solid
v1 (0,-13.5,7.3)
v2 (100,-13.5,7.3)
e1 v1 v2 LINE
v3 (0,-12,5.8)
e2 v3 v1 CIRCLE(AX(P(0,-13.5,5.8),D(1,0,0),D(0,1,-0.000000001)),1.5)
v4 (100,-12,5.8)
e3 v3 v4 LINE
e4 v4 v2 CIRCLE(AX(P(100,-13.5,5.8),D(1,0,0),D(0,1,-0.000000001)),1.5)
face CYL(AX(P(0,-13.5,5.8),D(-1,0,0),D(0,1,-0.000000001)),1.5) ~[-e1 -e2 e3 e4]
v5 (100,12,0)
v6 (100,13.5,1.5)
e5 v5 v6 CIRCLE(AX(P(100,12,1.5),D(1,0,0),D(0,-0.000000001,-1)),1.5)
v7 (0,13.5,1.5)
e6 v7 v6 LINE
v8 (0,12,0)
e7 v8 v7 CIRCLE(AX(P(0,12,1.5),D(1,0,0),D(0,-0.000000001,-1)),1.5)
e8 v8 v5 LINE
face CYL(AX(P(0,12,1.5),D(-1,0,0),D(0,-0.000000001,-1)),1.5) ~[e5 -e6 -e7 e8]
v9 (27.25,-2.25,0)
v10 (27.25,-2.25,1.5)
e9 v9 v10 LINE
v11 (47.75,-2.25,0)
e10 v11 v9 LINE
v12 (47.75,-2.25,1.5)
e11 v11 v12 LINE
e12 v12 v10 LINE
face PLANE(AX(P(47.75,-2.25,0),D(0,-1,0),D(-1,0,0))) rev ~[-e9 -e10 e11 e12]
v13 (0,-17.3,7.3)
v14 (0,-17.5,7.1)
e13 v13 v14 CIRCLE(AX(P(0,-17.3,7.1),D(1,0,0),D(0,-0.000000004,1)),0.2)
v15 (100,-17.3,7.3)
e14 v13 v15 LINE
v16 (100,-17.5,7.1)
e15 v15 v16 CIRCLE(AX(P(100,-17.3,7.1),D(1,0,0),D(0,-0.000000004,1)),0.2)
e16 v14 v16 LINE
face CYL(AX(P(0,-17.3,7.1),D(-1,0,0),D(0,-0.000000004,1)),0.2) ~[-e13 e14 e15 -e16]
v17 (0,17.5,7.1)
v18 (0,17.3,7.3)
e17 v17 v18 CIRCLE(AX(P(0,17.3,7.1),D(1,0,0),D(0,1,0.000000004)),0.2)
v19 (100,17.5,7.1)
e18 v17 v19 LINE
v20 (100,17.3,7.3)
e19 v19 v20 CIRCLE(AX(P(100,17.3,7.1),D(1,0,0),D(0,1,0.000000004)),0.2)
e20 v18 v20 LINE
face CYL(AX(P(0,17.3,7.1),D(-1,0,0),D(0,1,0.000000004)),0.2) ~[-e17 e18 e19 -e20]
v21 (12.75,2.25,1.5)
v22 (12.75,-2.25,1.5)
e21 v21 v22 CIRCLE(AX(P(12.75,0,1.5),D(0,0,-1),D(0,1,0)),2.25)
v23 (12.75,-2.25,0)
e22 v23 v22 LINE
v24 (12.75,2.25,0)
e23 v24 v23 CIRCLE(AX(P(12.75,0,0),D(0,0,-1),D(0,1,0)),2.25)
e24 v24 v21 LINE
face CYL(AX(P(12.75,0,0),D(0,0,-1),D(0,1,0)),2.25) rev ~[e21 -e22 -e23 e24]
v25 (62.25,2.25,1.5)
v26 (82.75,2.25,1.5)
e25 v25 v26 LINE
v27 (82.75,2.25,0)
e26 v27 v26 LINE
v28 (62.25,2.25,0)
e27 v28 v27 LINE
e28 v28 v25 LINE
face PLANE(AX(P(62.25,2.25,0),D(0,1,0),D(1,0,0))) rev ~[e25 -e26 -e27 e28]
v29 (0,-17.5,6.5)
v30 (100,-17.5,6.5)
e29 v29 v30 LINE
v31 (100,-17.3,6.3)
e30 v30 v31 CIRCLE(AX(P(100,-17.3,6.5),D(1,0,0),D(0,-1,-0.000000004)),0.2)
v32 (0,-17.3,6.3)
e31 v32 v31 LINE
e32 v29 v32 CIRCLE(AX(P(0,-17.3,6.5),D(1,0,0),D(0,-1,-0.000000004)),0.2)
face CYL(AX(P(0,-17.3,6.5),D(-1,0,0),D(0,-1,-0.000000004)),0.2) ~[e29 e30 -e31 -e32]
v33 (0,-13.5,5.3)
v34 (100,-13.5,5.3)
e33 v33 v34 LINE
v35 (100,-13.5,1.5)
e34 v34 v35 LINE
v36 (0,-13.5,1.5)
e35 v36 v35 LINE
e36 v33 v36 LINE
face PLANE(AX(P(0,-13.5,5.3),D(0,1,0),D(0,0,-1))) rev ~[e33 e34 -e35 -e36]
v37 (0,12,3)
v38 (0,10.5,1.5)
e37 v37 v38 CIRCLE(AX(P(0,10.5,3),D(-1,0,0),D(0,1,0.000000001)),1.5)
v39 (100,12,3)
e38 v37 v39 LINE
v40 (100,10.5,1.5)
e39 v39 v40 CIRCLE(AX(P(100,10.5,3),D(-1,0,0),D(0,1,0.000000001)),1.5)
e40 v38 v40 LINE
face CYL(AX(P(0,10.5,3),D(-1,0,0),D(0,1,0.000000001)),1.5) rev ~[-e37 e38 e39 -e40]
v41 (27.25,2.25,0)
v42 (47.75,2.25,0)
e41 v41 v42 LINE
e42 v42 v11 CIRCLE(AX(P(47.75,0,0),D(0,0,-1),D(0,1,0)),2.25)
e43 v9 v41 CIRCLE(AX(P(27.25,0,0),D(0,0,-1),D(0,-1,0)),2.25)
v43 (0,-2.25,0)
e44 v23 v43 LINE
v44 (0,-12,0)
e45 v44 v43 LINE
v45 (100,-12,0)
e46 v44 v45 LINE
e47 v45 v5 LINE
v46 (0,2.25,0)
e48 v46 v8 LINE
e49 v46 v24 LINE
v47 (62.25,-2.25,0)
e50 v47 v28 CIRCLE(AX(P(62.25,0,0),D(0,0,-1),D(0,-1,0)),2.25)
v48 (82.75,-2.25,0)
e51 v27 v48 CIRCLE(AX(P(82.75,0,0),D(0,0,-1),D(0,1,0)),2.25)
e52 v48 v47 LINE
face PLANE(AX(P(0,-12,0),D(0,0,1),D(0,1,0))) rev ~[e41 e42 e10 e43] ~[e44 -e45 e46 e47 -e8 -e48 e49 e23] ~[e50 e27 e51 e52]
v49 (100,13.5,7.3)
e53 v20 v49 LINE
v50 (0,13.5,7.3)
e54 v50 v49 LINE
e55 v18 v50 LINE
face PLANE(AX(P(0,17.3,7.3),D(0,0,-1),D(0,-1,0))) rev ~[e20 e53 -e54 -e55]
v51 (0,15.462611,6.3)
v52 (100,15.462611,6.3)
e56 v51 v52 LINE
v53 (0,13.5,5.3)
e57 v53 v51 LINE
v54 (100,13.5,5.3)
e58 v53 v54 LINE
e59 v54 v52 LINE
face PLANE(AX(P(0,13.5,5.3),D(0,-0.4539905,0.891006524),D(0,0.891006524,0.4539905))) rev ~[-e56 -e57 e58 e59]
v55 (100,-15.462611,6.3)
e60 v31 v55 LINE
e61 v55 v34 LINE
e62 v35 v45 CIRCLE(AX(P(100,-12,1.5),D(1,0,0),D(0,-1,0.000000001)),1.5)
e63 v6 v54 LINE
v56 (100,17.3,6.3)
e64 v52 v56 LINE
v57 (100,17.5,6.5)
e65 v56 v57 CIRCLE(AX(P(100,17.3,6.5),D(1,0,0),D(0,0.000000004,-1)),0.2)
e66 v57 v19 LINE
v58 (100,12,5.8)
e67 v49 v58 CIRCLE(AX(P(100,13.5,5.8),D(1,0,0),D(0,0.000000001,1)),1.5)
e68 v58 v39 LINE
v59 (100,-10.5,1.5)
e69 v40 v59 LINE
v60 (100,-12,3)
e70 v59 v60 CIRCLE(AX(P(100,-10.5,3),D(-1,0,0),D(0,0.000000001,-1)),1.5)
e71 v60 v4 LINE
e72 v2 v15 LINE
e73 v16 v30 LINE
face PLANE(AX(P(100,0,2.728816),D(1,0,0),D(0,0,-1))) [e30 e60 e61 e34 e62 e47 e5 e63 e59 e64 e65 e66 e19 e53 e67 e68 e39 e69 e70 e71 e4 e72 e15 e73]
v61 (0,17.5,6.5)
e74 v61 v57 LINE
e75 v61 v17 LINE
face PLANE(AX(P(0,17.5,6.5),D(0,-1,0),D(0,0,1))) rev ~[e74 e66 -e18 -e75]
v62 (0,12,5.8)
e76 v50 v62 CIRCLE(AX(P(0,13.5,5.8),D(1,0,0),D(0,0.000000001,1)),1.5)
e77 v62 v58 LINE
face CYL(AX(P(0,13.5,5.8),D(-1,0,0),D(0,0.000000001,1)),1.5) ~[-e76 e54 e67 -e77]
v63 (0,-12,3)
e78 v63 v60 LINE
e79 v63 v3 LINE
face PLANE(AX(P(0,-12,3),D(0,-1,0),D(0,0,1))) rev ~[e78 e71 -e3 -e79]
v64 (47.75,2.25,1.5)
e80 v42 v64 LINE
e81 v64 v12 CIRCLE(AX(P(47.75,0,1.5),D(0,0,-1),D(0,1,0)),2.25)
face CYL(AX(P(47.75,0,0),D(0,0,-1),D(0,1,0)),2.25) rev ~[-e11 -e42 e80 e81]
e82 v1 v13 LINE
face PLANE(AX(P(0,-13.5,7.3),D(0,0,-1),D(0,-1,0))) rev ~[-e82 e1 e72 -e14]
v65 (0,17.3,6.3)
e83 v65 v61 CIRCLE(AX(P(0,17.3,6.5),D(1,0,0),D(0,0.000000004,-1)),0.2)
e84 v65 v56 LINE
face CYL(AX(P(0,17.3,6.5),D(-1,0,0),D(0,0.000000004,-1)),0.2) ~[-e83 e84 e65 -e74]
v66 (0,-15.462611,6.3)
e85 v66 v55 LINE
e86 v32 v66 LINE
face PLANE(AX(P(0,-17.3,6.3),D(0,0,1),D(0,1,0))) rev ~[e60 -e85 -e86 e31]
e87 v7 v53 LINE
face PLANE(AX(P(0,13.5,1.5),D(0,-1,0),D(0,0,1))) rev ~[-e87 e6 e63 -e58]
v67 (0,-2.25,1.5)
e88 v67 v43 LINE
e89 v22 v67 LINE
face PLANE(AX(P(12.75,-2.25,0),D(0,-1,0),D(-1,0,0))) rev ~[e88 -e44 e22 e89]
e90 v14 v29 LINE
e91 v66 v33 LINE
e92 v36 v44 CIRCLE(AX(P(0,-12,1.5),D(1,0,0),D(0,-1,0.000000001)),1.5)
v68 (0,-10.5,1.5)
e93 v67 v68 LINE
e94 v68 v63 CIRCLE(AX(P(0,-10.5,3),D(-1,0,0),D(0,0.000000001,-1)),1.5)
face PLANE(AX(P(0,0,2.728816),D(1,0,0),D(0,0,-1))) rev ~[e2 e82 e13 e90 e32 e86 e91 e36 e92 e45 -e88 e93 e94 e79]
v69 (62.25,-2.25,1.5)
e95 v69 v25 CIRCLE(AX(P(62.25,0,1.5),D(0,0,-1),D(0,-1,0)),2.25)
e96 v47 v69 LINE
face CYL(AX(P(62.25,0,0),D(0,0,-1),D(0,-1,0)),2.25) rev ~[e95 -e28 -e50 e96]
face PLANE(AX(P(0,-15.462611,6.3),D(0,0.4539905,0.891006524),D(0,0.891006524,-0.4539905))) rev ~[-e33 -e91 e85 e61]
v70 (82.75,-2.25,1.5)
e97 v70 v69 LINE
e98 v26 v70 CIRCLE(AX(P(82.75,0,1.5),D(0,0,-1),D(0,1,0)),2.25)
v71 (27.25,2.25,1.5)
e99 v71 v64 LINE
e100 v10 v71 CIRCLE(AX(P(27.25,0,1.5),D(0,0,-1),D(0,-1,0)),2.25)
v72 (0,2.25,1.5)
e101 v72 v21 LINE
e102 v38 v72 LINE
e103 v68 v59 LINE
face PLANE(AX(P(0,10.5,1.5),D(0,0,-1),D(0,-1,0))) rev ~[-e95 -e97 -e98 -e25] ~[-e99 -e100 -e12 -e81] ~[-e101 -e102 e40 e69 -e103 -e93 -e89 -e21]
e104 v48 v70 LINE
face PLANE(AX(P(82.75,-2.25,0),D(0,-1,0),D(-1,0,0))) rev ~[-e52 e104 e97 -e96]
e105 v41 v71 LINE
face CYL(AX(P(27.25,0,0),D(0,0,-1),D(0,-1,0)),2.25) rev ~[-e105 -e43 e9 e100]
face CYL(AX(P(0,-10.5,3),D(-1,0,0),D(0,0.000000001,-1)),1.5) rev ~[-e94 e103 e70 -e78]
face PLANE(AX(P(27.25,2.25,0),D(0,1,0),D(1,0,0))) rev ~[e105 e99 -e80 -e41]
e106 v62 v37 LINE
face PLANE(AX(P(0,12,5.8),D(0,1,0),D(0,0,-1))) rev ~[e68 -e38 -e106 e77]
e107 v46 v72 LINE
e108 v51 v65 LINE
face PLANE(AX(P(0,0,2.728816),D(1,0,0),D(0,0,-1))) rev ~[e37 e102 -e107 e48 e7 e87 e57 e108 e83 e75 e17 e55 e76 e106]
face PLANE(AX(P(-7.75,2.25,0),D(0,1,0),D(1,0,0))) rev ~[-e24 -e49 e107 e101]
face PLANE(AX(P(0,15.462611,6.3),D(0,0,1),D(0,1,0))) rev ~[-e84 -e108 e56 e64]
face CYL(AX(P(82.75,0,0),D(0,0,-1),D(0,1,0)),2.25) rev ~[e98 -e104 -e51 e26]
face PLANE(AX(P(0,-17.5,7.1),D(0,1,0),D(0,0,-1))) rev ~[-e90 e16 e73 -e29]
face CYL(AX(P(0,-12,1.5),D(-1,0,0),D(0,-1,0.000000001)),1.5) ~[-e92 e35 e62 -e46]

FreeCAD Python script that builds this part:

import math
import FreeCAD as App
import Part
import Sketcher
from FreeCAD import Vector
Q = App.Units.Quantity

doc = App.newDocument("Part")
body = doc.addObject("PartDesign::Body", "Body")

# Sketch on YZ plane
sketch1 = doc.addObject("Sketcher::SketchObject", "Sketch")
body.addObject(sketch1)
sketch1.AttachmentSupport = (doc.YZ_Plane, [""])
sketch1.MapMode = "FlatFace"
sketch1.addGeometry(Part.LineSegment(Vector(17.5, 6.5, 0), Vector(17.5, 7.1, 0)), False)
sketch1.addGeometry(Part.ArcOfCircle(Part.Circle(Vector(17.3, 7.1, 0), Vector(0, 0, 1), 0.2), math.radians(0), math.radians(90)), False)
sketch1.addGeometry(Part.LineSegment(Vector(17.3, 7.3, 0), Vector(13.5, 7.3, 0)), False)
sketch1.addGeometry(Part.ArcOfCircle(Part.Circle(Vector(13.5, 5.8, 0), Vector(0, 0, 1), 1.5), math.radians(90), math.radians(180)), False)
sketch1.addGeometry(Part.LineSegment(Vector(12, 5.8, 0), Vector(12, 3, 0)), False)
sketch1.addGeometry(Part.ArcOfCircle(Part.Circle(Vector(10.5, 3, 0), Vector(0, 0, 1), 1.5), math.radians(-90), math.radians(0)), False)
sketch1.addGeometry(Part.LineSegment(Vector(10.5, 1.5, 0), Vector(-10.5, 1.5, 0)), False)
sketch1.addGeometry(Part.ArcOfCircle(Part.Circle(Vector(-10.5, 3, 0), Vector(0, 0, 1), 1.5), math.radians(180), math.radians(270)), False)
sketch1.addGeometry(Part.LineSegment(Vector(-12, 3, 0), Vector(-12, 5.8, 0)), False)
sketch1.addGeometry(Part.ArcOfCircle(Part.Circle(Vector(-13.5, 5.8, 0), Vector(0, 0, 1), 1.5), math.radians(0), math.radians(90)), False)
sketch1.addGeometry(Part.LineSegment(Vector(-13.5, 7.3, 0), Vector(-17.3, 7.3, 0)), False)
sketch1.addGeometry(Part.ArcOfCircle(Part.Circle(Vector(-17.3, 7.1, 0), Vector(0, 0, 1), 0.2), math.radians(90), math.radians(180)), False)
sketch1.addGeometry(Part.LineSegment(Vector(-17.5, 7.1, 0), Vector(-17.5, 6.5, 0)), False)
sketch1.addGeometry(Part.ArcOfCircle(Part.Circle(Vector(-17.3, 6.5, 0), Vector(0, 0, 1), 0.2), math.radians(-180), math.radians(-90)), False)
sketch1.addGeometry(Part.LineSegment(Vector(-17.3, 6.3, 0), Vector(-15.462611, 6.3, 0)), False)
sketch1.addGeometry(Part.LineSegment(Vector(-15.462611, 6.3, 0), Vector(-13.5, 5.3, 0)), False)
sketch1.addGeometry(Part.LineSegment(Vector(-13.5, 5.3, 0), Vector(-13.5, 1.5, 0)), False)
sketch1.addGeometry(Part.ArcOfCircle(Part.Circle(Vector(-12, 1.5, 0), Vector(0, 0, 1), 1.5), math.radians(180), math.radians(270)), False)
sketch1.addGeometry(Part.LineSegment(Vector(-12, 0, 0), Vector(12, 0, 0)), False)
sketch1.addGeometry(Part.ArcOfCircle(Part.Circle(Vector(12, 1.5, 0), Vector(0, 0, 1), 1.5), math.radians(-90), math.radians(0)), False)
sketch1.addGeometry(Part.LineSegment(Vector(13.5, 1.5, 0), Vector(13.5, 5.3, 0)), False)
sketch1.addGeometry(Part.LineSegment(Vector(13.5, 5.3, 0), Vector(15.462611, 6.3, 0)), False)
sketch1.addGeometry(Part.LineSegment(Vector(15.462611, 6.3, 0), Vector(17.3, 6.3, 0)), False)
sketch1.addGeometry(Part.ArcOfCircle(Part.Circle(Vector(17.3, 6.5, 0), Vector(0, 0, 1), 0.2), math.radians(-90), math.radians(0)), False)
sketch1.addConstraint(Sketcher.Constraint("Tangent", 0, 2, 1, 1))
sketch1.addConstraint(Sketcher.Constraint("Tangent", 1, 2, 2, 1))
sketch1.addConstraint(Sketcher.Constraint("Tangent", 2, 2, 3, 1))
sketch1.addConstraint(Sketcher.Constraint("Tangent", 3, 2, 4, 1))
sketch1.addConstraint(Sketcher.Constraint("Tangent", 4, 2, 5, 2))
sketch1.addConstraint(Sketcher.Constraint("Tangent", 5, 1, 6, 1))
sketch1.addConstraint(Sketcher.Constraint("Tangent", 6, 2, 7, 2))
sketch1.addConstraint(Sketcher.Constraint("Tangent", 7, 1, 8, 1))
sketch1.addConstraint(Sketcher.Constraint("Tangent", 8, 2, 9, 1))
sketch1.addConstraint(Sketcher.Constraint("Tangent", 9, 2, 10, 1))
sketch1.addConstraint(Sketcher.Constraint("Tangent", 10, 2, 11, 1))
sketch1.addConstraint(Sketcher.Constraint("Tangent", 11, 2, 12, 1))
sketch1.addConstraint(Sketcher.Constraint("Tangent", 12, 2, 13, 1))
sketch1.addConstraint(Sketcher.Constraint("Tangent", 13, 2, 14, 1))
sketch1.addConstraint(Sketcher.Constraint("Coincident", 14, 2, 15, 1))
sketch1.addConstraint(Sketcher.Constraint("Coincident", 15, 2, 16, 1))
sketch1.addConstraint(Sketcher.Constraint("Tangent", 16, 2, 17, 1))
sketch1.addConstraint(Sketcher.Constraint("Tangent", 17, 2, 18, 1))
sketch1.addConstraint(Sketcher.Constraint("Tangent", 18, 2, 19, 1))
sketch1.addConstraint(Sketcher.Constraint("Tangent", 19, 2, 20, 1))
sketch1.addConstraint(Sketcher.Constraint("Coincident", 20, 2, 21, 1))
sketch1.addConstraint(Sketcher.Constraint("Coincident", 21, 2, 22, 1))
sketch1.addConstraint(Sketcher.Constraint("Tangent", 22, 2, 23, 1))
sketch1.addConstraint(Sketcher.Constraint("Tangent", 23, 2, 0, 1))
sketch1.addConstraint(Sketcher.Constraint("Vertical", 0))
sketch1.addConstraint(Sketcher.Constraint("Horizontal", 2))
sketch1.addConstraint(Sketcher.Constraint("Vertical", 4))
sketch1.addConstraint(Sketcher.Constraint("Horizontal", 6))
sketch1.addConstraint(Sketcher.Constraint("Vertical", 8))
sketch1.addConstraint(Sketcher.Constraint("Horizontal", 10))
sketch1.addConstraint(Sketcher.Constraint("Vertical", 12))
sketch1.addConstraint(Sketcher.Constraint("Horizontal", 14))
sketch1.addConstraint(Sketcher.Constraint("Vertical", 16))
sketch1.addConstraint(Sketcher.Constraint("Horizontal", 18))
sketch1.addConstraint(Sketcher.Constraint("Vertical", 20))
sketch1.addConstraint(Sketcher.Constraint("Horizontal", 22))
sketch1.addConstraint(Sketcher.Constraint("Equal", 3, 5))
sketch1.addConstraint(Sketcher.Constraint("Equal", 5, 7))
sketch1.addConstraint(Sketcher.Constraint("Equal", 7, 9))
sketch1.addConstraint(Sketcher.Constraint("Equal", 1, 11))
sketch1.addConstraint(Sketcher.Constraint("Equal", 11, 13))
sketch1.addConstraint(Sketcher.Constraint("Equal", 9, 17))
sketch1.addConstraint(Sketcher.Constraint("Equal", 17, 19))
sketch1.addConstraint(Sketcher.Constraint("Equal", 13, 23))
sketch1.addConstraint(Sketcher.Constraint("Symmetric", 17, 2, 18, 2, -1, 1))
sketch1.addConstraint(Sketcher.Constraint("Symmetric", 3, 3, 9, 3, -2))
sketch1.addConstraint(Sketcher.Constraint("Symmetric", 13, 3, 23, 3, -2))
sketch1.addConstraint(Sketcher.Constraint("Horizontal", 19, 3, 5, 1))
sketch1.addConstraint(Sketcher.Constraint("Horizontal", 15, 2, 20, 2))
sketch1.addConstraint(Sketcher.Constraint("Vertical", 19, 3, 3, 2))
sketch1.addConstraint(Sketcher.Constraint("Equal", 14, 22))
sketch1.addConstraint(Sketcher.Constraint("Equal", 10, 16))
sketch1.addConstraint(Sketcher.Constraint("Radius", 1, 0.2))
sketch1.addConstraint(Sketcher.Constraint("Radius", 3, 1.5))
sketch1.addConstraint(Sketcher.Constraint("DistanceX", 6, 2, 6, 1, 21.0))
sketch1.addConstraint(Sketcher.Constraint("Angle", 15, Q("-27 deg")))
sketch1.addConstraint(Sketcher.Constraint("DistanceX", 2, 2, 2, 1, 3.8))
sketch1.addConstraint(Sketcher.Constraint("DistanceY", 0, 1, 0, 2, 0.6))
sketch1.addConstraint(Sketcher.Constraint("DistanceY", 4, 2, 4, 1, 2.8))
pad1 = doc.addObject("PartDesign::Pad", "Pad")
body.addObject(pad1)
pad1.Profile = sketch1
pad1.Length = 100

# Sketch on XY plane
sketch2 = doc.addObject("Sketcher::SketchObject", "Sketch001")
body.addObject(sketch2)
sketch2.AttachmentSupport = (doc.XY_Plane, [""])
sketch2.MapMode = "FlatFace"
sketch2.addGeometry(Part.LineSegment(Vector(82.75, 2.25, 0), Vector(62.25, 2.25, 0)), False)
sketch2.addGeometry(Part.ArcOfCircle(Part.Circle(Vector(62.25, 0, 0), Vector(0, 0, 1), 2.25), math.radians(90), math.radians(270)), False)
sketch2.addGeometry(Part.LineSegment(Vector(62.25, -2.25, 0), Vector(82.75, -2.25, 0)), False)
sketch2.addGeometry(Part.ArcOfCircle(Part.Circle(Vector(82.75, 0, 0), Vector(0, 0, 1), 2.25), math.radians(-90), math.radians(90)), False)
sketch2.addConstraint(Sketcher.Constraint("Tangent", 0, 2, 1, 1))
sketch2.addConstraint(Sketcher.Constraint("Tangent", 1, 2, 2, 1))
sketch2.addConstraint(Sketcher.Constraint("Tangent", 2, 2, 3, 1))
sketch2.addConstraint(Sketcher.Constraint("Tangent", 3, 2, 0, 1))
sketch2.addConstraint(Sketcher.Constraint("Horizontal", 0))
sketch2.addConstraint(Sketcher.Constraint("Horizontal", 2))
sketch2.addConstraint(Sketcher.Constraint("PointOnObject", 1, 3, -1))
sketch2.addConstraint(Sketcher.Constraint("Radius", 1, 2.25))
sketch2.addConstraint(Sketcher.Constraint("DistanceX", 0, 2, 0, 1, 20.5))
sketch2.addConstraint(Sketcher.Constraint("DistanceX", -1, 1, 1, 3, 62.25))
pocket1 = doc.addObject("PartDesign::Pocket", "Pocket")
body.addObject(pocket1)
pocket1.Profile = sketch2
pocket1.Type = "ThroughAll"
pocket1.Reversed = True
doc.recompute()

linearpattern = doc.addObject("PartDesign::LinearPattern", "LinearPattern")
body.addObject(linearpattern)
linearpattern.Originals = [pocket1]
linearpattern.Direction = (doc.X_Axis, [""])
linearpattern.Mode = "offset"
linearpattern.Offset = 35
linearpattern.Occurrences = 3
linearpattern.Reversed = True
body.Tip = linearpattern

doc.recompute()
